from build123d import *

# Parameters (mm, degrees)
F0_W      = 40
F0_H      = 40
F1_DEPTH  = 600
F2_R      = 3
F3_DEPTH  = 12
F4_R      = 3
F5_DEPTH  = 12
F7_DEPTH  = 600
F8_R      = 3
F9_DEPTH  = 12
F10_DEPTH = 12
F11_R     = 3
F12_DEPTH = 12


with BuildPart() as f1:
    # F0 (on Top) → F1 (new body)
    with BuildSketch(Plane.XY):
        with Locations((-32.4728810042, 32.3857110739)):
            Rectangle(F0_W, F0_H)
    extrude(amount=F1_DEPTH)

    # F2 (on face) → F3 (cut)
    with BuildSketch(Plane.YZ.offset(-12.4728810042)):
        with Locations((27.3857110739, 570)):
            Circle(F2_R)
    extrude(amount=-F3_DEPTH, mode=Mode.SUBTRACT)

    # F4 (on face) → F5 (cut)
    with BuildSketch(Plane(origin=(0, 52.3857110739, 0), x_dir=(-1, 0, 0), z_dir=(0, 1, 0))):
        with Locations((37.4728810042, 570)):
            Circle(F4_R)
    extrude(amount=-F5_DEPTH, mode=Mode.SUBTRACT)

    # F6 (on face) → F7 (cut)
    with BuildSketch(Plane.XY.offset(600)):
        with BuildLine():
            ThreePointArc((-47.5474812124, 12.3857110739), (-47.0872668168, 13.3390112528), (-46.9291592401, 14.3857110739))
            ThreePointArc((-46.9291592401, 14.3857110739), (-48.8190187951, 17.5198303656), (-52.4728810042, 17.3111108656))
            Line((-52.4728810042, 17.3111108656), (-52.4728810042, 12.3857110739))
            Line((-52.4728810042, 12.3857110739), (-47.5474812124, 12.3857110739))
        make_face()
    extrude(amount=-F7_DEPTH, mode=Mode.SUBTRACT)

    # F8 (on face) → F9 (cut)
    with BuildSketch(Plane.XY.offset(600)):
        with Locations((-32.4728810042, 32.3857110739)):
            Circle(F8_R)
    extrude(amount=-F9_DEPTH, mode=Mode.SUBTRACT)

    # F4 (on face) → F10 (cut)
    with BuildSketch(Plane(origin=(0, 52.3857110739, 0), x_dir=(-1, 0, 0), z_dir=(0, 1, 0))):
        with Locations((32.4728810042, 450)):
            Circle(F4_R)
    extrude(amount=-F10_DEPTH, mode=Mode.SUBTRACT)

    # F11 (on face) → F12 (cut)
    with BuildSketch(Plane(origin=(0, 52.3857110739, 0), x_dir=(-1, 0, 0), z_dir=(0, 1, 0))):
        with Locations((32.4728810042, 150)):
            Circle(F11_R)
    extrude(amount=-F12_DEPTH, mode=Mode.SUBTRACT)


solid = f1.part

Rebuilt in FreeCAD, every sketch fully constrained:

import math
import FreeCAD as App
import Part
import Sketcher
from FreeCAD import Vector
Q = App.Units.Quantity


def add_polygon(sketch, points):
    """Adds a closed chain of lines whose ends are joined by coincident constraints."""
    first, n = sketch.GeometryCount, len(points)
    for a, b in zip(points, points[1:] + points[:1]):
        sketch.addGeometry(Part.LineSegment(App.Vector(*a, 0), App.Vector(*b, 0)), False)
    for i in range(n):
        sketch.addConstraint(Sketcher.Constraint("Coincident", first + i, 2, first + (i + 1) % n, 1))

doc = App.newDocument("Part")
body = doc.addObject("PartDesign::Body", "Body")

sketch1 = doc.addObject("Sketcher::SketchObject", "Sketch")
body.addObject(sketch1)
sketch1.AttachmentSupport = (doc.XY_Plane, [""])
sketch1.MapMode = "FlatFace"
add_polygon(sketch1, [(-52.472881, 52.385711), (-52.472881, 12.385711), (-12.472881, 12.385711), (-12.472881, 52.385711)])
sketch1.addConstraint([
    Sketcher.Constraint("Vertical", 0),
    Sketcher.Constraint("Horizontal", 1),
    Sketcher.Constraint("Vertical", 2),
    Sketcher.Constraint("Horizontal", 3),
    Sketcher.Constraint("Equal", 3, 0),
    Sketcher.Constraint("DistanceX", 1, 1, 1, 2, Q("40 mm")),
    Sketcher.Constraint("DistanceX", 0, 2, -1, 1, Q("52.472881 mm")),
    Sketcher.Constraint("DistanceY", -1, 1, 0, 2, Q("12.385711 mm")),
])
pad1 = doc.addObject("PartDesign::Pad", "Pad")
body.addObject(pad1)
pad1.Profile = sketch1
pad1.Length = 600

sketch2 = doc.addObject("Sketcher::SketchObject", "Sketch001")
body.addObject(sketch2)
sketch2.AttachmentSupport = (doc.YZ_Plane, [""])
sketch2.MapMode = "FlatFace"
sketch2.AttachmentOffset = App.Placement(Vector(0, 0, -12.472881), App.Rotation())
sketch2.addGeometry(Part.Circle(Vector(27.385711, 570, 0), Vector(0, 0, 1), 3), False)
sketch2.addConstraint([
    Sketcher.Constraint("Diameter", 0, Q("6 mm")),
    Sketcher.Constraint("DistanceY", -1, 1, 0, 3, Q("570 mm")),
    Sketcher.Constraint("DistanceX", -1, 1, 0, 3, Q("27.385711 mm")),
])
pocket1 = doc.addObject("PartDesign::Pocket", "Pocket")
body.addObject(pocket1)
pocket1.Profile = sketch2
pocket1.Length = 12

sketch3 = doc.addObject("Sketcher::SketchObject", "Sketch002")
body.addObject(sketch3)
sketch3.AttachmentSupport = (doc.XZ_Plane, [""])
sketch3.MapMode = "FlatFace"
sketch3.AttachmentOffset = App.Placement(Vector(0, 0, -52.385711), App.Rotation())
sketch3.addGeometry(Part.Circle(Vector(-37.472881, 570, 0), Vector(0, 0, 1), 3), False)
sketch3.addConstraint([
    Sketcher.Constraint("Diameter", 0, Q("6 mm")),
    Sketcher.Constraint("DistanceY", -1, 1, 0, 3, Q("570 mm")),
    Sketcher.Constraint("DistanceX", 0, 3, -1, 1, Q("37.472881 mm")),
])
pocket2 = doc.addObject("PartDesign::Pocket", "Pocket001")
body.addObject(pocket2)
pocket2.Profile = sketch3
pocket2.Length = 12
pocket2.Reversed = True

sketch4 = doc.addObject("Sketcher::SketchObject", "Sketch003")
body.addObject(sketch4)
sketch4.AttachmentSupport = (doc.XY_Plane, [""])
sketch4.MapMode = "FlatFace"
sketch4.AttachmentOffset = App.Placement(Vector(0, 0, 600), App.Rotation())
sketch4.addGeometry([
    Part.ArcOfCircle(Part.Circle(Vector(-50.472881, 14.385711, 0), Vector(0, 0, 1), 3.543722), math.radians(-34.359137), math.radians(0)),
    Part.ArcOfCircle(Part.Circle(Vector(-50.472881, 14.385711, 0), Vector(0, 0, 1), 3.543722), math.radians(0), math.radians(124.359137)),
    Part.LineSegment(Vector(-52.472881, 17.311111, 0), Vector(-52.472881, 12.385711, 0)),
    Part.LineSegment(Vector(-52.472881, 12.385711, 0), Vector(-47.547481, 12.385711, 0)),
], False)
sketch4.addConstraint([
    Sketcher.Constraint("Tangent", 0, 2, 1, 1),
    Sketcher.Constraint("Coincident", 1, 2, 2, 1),
    Sketcher.Constraint("Coincident", 2, 2, 3, 1),
    Sketcher.Constraint("Coincident", 3, 2, 0, 1),
    Sketcher.Constraint("Vertical", 2),
    Sketcher.Constraint("Horizontal", 3),
    Sketcher.Constraint("Equal", 0, 1),
    Sketcher.Constraint("Horizontal", 1, 3, 0, 2),
    Sketcher.Constraint("Equal", 3, 2),
    Sketcher.Constraint("DistanceX", 1, 2, 0, 3, Q("2 mm")),
    Sketcher.Constraint("Radius", 0, Q("3.543722 mm")),
    Sketcher.Constraint("DistanceX", 0, 3, -1, 1, Q("50.472881 mm")),
    Sketcher.Constraint("DistanceY", -1, 1, 0, 3, Q("14.385711 mm")),
])
pocket3 = doc.addObject("PartDesign::Pocket", "Pocket002")
body.addObject(pocket3)
pocket3.Profile = sketch4
pocket3.Length = 600

sketch5 = doc.addObject("Sketcher::SketchObject", "Sketch004")
body.addObject(sketch5)
sketch5.AttachmentSupport = (doc.XY_Plane, [""])
sketch5.MapMode = "FlatFace"
sketch5.AttachmentOffset = App.Placement(Vector(0, 0, 600), App.Rotation())
sketch5.addGeometry(Part.Circle(Vector(-32.472881, 32.385711, 0), Vector(0, 0, 1), 3), False)
sketch5.addConstraint([
    Sketcher.Constraint("Diameter", 0, Q("6 mm")),
    Sketcher.Constraint("DistanceX", 0, 3, -1, 1, Q("32.472881 mm")),
    Sketcher.Constraint("DistanceY", -1, 1, 0, 3, Q("32.385711 mm")),
])
pocket4 = doc.addObject("PartDesign::Pocket", "Pocket003")
body.addObject(pocket4)
pocket4.Profile = sketch5
pocket4.Length = 12

sketch6 = doc.addObject("Sketcher::SketchObject", "Sketch005")
body.addObject(sketch6)
sketch6.AttachmentSupport = (doc.XZ_Plane, [""])
sketch6.MapMode = "FlatFace"
sketch6.AttachmentOffset = App.Placement(Vector(0, 0, -52.385711), App.Rotation())
sketch6.addGeometry(Part.Circle(Vector(-32.472881, 450, 0), Vector(0, 0, 1), 3), False)
sketch6.addConstraint([
    Sketcher.Constraint("Diameter", 0, Q("6 mm")),
    Sketcher.Constraint("DistanceY", -1, 1, 0, 3, Q("450 mm")),
    Sketcher.Constraint("DistanceX", 0, 3, -1, 1, Q("32.472881 mm")),
])
pocket5 = doc.addObject("PartDesign::Pocket", "Pocket004")
body.addObject(pocket5)
pocket5.Profile = sketch6
pocket5.Length = 12
pocket5.Reversed = True

sketch7 = doc.addObject("Sketcher::SketchObject", "Sketch006")
body.addObject(sketch7)
sketch7.AttachmentSupport = (doc.XZ_Plane, [""])
sketch7.MapMode = "FlatFace"
sketch7.AttachmentOffset = App.Placement(Vector(0, 0, -52.385711), App.Rotation())
sketch7.addGeometry(Part.Circle(Vector(-32.472881, 150, 0), Vector(0, 0, 1), 3), False)
sketch7.addConstraint([
    Sketcher.Constraint("Diameter", 0, Q("6 mm")),
    Sketcher.Constraint("DistanceY", -1, 1, 0, 3, Q("150 mm")),
    Sketcher.Constraint("DistanceX", 0, 3, -1, 1, Q("32.472881 mm")),
])
pocket6 = doc.addObject("PartDesign::Pocket", "Pocket005")
body.addObject(pocket6)
pocket6.Profile = sketch7
pocket6.Length = 12
pocket6.Reversed = True

doc.recompute()
